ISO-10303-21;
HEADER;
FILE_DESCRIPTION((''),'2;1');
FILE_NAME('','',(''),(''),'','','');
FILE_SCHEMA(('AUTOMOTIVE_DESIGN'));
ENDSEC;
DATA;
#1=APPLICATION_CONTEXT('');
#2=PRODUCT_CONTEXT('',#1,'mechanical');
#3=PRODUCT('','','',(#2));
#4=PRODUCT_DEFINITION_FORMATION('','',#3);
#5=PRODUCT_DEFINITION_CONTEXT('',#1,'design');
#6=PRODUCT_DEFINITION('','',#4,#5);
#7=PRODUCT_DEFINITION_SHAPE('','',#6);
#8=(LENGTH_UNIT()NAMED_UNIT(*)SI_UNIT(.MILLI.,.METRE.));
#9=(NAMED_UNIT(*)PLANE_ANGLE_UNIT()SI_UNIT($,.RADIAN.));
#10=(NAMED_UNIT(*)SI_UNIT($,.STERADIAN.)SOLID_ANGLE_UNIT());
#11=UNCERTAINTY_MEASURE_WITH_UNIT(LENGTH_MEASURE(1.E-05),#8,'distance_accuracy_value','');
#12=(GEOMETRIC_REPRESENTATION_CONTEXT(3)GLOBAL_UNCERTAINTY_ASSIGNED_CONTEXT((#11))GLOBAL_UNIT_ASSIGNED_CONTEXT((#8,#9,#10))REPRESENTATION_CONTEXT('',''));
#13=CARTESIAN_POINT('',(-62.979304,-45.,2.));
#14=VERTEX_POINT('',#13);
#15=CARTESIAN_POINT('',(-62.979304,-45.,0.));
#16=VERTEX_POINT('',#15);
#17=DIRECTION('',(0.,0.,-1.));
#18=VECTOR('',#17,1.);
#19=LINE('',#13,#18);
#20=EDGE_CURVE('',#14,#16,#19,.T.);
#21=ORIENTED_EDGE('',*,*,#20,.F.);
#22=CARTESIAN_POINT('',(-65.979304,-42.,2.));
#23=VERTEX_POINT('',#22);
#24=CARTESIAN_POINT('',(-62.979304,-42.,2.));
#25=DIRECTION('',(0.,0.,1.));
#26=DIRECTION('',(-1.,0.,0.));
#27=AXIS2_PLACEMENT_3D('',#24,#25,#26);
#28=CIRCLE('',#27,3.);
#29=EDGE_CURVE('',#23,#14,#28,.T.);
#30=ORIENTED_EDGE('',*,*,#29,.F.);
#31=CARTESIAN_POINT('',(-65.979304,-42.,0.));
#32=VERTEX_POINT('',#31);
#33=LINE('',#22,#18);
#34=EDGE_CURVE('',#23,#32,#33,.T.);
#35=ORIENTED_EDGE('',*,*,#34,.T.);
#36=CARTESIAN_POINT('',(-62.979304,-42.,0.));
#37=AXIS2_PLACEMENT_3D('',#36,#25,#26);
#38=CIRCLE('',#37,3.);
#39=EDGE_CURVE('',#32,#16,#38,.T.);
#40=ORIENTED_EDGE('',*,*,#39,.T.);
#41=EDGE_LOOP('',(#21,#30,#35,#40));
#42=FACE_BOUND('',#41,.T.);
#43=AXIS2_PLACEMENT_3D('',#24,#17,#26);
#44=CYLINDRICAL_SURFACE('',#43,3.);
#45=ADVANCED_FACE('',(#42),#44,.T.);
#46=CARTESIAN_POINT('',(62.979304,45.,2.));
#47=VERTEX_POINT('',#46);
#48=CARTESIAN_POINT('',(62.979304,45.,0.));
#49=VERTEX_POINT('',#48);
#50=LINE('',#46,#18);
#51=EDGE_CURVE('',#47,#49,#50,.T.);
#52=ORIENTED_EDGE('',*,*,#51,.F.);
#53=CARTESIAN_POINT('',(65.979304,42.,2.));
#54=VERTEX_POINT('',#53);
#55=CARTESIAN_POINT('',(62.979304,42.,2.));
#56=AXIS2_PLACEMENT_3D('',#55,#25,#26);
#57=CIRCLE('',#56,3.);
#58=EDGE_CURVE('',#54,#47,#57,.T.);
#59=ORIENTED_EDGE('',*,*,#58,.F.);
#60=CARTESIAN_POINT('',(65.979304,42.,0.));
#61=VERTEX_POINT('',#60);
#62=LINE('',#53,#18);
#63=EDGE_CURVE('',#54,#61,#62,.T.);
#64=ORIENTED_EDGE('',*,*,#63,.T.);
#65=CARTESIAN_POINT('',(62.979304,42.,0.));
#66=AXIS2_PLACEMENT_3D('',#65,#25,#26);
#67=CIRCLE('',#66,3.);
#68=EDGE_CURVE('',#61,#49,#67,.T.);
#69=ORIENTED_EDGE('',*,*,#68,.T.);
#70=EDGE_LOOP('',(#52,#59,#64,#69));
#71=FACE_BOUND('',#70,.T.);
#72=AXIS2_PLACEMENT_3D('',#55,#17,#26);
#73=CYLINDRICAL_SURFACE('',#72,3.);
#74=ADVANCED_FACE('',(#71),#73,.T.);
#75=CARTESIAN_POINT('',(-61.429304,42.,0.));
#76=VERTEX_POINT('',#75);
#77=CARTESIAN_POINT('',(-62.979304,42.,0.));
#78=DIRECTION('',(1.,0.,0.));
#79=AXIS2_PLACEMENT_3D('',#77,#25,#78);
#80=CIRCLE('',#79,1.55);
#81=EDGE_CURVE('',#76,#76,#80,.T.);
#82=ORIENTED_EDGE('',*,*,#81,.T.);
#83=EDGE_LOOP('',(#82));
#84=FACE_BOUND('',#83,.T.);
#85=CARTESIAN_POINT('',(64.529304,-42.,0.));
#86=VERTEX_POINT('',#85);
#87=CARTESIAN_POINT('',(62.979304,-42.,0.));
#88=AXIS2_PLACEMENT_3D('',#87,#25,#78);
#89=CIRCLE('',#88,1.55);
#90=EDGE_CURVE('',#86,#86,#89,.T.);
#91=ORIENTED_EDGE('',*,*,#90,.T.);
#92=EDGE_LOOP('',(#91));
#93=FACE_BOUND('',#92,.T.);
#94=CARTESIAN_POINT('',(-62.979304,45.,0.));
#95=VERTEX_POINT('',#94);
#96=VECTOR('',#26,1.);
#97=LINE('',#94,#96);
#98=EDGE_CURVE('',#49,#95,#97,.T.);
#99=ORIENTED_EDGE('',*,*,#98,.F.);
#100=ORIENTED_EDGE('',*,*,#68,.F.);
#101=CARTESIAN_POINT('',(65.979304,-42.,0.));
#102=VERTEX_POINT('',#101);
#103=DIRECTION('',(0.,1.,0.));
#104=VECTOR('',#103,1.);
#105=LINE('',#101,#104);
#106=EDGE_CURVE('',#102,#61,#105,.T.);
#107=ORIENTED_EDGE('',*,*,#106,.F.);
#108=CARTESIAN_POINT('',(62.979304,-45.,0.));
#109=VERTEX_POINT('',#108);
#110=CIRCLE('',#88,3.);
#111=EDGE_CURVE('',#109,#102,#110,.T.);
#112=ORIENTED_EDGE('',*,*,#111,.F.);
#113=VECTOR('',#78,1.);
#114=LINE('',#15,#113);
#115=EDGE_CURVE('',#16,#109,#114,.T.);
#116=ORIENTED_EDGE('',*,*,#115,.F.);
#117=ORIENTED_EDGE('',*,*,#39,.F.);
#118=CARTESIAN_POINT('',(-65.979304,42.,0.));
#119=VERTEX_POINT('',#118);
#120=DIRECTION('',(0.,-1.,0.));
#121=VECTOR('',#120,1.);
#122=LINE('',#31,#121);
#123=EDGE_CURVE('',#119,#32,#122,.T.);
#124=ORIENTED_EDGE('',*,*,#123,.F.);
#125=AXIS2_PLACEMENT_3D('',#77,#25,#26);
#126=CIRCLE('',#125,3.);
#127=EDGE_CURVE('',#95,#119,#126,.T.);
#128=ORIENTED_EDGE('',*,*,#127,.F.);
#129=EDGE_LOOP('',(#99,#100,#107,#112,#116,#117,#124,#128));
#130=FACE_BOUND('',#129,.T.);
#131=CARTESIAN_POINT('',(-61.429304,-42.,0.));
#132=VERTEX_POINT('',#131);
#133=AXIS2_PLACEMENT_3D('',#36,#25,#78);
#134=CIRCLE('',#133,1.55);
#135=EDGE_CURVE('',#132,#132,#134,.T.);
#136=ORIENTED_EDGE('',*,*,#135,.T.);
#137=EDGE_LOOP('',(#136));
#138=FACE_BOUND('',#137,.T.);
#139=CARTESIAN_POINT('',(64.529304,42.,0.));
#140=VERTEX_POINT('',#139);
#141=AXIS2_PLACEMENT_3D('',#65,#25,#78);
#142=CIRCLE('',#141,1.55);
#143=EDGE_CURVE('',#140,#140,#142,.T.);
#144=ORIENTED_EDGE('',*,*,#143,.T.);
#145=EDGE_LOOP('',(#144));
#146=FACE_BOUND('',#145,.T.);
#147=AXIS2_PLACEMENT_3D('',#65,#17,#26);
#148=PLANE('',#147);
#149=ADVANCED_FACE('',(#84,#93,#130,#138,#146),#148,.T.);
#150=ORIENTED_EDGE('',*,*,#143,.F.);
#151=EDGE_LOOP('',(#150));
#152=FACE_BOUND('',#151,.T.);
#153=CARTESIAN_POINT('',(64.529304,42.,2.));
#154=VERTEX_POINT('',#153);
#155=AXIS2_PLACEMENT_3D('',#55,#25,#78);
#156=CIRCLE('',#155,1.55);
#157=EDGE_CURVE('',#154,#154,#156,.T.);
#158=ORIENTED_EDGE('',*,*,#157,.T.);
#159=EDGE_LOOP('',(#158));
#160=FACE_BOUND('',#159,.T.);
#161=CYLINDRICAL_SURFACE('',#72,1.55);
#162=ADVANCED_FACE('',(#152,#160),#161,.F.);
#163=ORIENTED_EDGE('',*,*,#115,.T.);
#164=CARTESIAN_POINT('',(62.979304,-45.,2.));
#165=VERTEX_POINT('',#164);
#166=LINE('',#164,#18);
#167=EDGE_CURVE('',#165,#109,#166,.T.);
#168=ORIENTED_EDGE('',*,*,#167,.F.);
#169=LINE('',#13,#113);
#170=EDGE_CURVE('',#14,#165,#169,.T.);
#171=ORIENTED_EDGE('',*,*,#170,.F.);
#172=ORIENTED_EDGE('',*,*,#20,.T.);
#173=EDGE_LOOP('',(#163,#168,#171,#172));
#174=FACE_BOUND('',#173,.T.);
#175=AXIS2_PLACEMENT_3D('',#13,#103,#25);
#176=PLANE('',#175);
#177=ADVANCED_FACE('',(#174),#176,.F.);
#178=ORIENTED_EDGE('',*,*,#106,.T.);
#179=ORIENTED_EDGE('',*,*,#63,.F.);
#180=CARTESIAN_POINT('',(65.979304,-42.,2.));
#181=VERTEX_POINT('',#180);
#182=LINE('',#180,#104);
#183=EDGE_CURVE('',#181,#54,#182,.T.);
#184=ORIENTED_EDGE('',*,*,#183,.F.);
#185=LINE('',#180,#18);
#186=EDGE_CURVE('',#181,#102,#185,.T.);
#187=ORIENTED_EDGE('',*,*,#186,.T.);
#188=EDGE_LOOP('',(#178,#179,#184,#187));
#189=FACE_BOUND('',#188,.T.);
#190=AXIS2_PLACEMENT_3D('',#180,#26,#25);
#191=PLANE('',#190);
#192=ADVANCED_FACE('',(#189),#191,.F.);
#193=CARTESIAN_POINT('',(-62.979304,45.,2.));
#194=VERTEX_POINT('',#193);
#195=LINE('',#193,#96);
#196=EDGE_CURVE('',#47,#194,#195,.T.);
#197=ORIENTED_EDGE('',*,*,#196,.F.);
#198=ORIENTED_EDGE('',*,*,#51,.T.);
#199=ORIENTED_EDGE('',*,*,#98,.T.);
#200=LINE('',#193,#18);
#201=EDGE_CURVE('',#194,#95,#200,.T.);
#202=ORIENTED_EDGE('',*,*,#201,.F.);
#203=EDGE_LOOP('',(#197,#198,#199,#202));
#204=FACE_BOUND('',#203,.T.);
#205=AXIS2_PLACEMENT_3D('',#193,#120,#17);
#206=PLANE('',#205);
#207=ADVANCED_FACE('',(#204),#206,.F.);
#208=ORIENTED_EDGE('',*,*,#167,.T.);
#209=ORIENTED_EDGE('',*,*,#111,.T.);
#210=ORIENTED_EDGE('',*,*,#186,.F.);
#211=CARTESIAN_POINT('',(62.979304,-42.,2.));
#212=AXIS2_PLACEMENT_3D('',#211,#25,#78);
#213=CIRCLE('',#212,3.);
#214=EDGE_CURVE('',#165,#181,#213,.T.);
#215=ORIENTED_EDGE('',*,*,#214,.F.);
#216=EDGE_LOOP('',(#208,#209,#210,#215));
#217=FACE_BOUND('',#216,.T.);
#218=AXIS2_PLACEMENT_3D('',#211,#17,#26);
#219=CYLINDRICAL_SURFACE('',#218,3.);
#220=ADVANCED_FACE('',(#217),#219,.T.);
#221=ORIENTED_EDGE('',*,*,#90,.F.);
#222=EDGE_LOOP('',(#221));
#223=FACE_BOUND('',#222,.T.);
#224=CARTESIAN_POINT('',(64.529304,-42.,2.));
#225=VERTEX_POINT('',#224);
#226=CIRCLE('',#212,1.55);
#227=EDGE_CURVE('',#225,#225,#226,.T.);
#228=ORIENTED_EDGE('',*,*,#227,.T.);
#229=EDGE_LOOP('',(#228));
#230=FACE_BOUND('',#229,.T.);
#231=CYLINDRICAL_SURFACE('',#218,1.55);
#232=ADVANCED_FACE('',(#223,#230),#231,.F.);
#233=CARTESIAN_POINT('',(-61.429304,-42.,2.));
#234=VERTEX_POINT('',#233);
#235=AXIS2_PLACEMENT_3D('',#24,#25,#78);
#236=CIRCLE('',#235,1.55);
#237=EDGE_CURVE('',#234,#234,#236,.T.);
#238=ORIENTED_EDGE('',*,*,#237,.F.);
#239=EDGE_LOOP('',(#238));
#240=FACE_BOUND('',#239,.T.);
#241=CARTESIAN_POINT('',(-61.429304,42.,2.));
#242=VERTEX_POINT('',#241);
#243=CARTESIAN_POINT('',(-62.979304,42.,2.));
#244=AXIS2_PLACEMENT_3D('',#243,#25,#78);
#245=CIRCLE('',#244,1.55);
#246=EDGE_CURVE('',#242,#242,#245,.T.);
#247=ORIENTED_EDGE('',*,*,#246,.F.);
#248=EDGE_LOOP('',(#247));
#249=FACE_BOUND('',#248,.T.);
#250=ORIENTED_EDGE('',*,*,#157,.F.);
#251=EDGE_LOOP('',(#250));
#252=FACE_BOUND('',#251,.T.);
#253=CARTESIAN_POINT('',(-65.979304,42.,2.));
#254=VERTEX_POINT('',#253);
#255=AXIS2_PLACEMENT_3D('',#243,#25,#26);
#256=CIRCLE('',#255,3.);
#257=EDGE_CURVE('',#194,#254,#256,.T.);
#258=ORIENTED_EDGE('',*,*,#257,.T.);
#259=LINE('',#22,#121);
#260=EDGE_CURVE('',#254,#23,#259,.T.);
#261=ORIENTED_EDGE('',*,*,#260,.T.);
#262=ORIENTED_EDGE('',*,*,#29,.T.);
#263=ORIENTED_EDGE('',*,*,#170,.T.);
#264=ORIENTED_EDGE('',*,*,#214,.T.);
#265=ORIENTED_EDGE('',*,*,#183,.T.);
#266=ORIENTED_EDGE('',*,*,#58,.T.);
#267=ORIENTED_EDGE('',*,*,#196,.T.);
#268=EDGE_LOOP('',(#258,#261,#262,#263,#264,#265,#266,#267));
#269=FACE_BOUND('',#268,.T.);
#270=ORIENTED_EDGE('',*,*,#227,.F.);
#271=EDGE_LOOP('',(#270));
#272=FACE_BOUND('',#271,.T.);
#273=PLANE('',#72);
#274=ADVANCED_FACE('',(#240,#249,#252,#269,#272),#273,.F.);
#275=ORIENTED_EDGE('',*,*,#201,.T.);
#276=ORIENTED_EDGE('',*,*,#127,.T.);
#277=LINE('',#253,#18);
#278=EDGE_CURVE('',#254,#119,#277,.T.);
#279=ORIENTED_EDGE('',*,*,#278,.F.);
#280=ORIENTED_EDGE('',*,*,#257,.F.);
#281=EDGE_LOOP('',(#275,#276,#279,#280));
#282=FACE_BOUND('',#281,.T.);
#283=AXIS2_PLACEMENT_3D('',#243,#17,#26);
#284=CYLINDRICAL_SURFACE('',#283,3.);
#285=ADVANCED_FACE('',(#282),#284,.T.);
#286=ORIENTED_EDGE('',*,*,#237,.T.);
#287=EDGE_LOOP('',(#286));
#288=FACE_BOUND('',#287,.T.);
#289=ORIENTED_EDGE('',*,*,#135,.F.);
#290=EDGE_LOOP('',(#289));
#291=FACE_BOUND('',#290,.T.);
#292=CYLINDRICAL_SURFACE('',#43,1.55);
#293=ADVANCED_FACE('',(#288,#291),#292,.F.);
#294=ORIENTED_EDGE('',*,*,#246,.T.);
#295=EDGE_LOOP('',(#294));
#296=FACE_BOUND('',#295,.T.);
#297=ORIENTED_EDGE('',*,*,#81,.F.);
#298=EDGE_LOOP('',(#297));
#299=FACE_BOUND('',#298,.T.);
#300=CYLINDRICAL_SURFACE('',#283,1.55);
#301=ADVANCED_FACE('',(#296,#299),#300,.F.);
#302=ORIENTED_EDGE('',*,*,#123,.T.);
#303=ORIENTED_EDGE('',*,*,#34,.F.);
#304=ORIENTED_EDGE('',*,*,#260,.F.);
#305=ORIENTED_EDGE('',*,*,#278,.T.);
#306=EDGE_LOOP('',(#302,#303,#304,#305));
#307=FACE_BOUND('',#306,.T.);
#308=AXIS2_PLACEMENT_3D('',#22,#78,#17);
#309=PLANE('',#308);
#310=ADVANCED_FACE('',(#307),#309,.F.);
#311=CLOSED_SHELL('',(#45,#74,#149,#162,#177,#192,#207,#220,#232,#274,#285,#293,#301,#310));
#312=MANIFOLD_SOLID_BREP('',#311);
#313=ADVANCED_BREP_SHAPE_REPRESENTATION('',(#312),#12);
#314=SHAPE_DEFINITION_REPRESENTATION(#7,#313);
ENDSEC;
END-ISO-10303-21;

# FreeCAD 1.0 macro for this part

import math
import FreeCAD as App
import Part
import Sketcher
from FreeCAD import Vector

doc = App.newDocument("Part")
body = doc.addObject("PartDesign::Body", "Body")

sketch1 = body.newObject("Sketcher::SketchObject", "Sketch")
sketch1.AttachmentSupport = (doc.getObject("XY_Plane"), [""])
sketch1.MapMode = "FlatFace"
sketch1.addGeometry([
    Part.LineSegment(Vector(-63, -45, 0), Vector(63, -45, 0)),
    Part.ArcOfCircle(Part.Circle(Vector(63, -42, 0), Vector(0, 0, 1), 3), math.radians(-90), math.radians(0)),
    Part.LineSegment(Vector(66, -42, 0), Vector(66, 42, 0)),
    Part.ArcOfCircle(Part.Circle(Vector(63, 42, 0), Vector(0, 0, 1), 3), math.radians(0), math.radians(90)),
    Part.LineSegment(Vector(63, 45, 0), Vector(-63, 45, 0)),
    Part.ArcOfCircle(Part.Circle(Vector(-63, 42, 0), Vector(0, 0, 1), 3), math.radians(90), math.radians(180)),
    Part.LineSegment(Vector(-66, 42, 0), Vector(-66, -42, 0)),
    Part.ArcOfCircle(Part.Circle(Vector(-63, -42, 0), Vector(0, 0, 1), 3), math.radians(180), math.radians(270)),
    Part.Circle(Vector(-63, -42, 0), Vector(0, 0, 1), 1.6),
    Part.Circle(Vector(63, -42, 0), Vector(0, 0, 1), 1.6),
    Part.Circle(Vector(-63, 42, 0), Vector(0, 0, 1), 1.6),
    Part.Circle(Vector(63, 42, 0), Vector(0, 0, 1), 1.6),
], False)
sketch1.addConstraint([
    Sketcher.Constraint("Tangent", 0, 2, 1, 1),
    Sketcher.Constraint("Tangent", 1, 2, 2, 1),
    Sketcher.Constraint("Tangent", 2, 2, 3, 1),
    Sketcher.Constraint("Tangent", 3, 2, 4, 1),
    Sketcher.Constraint("Tangent", 4, 2, 5, 1),
    Sketcher.Constraint("Tangent", 5, 2, 6, 1),
    Sketcher.Constraint("Tangent", 6, 2, 7, 1),
    Sketcher.Constraint("Tangent", 7, 2, 0, 1),
    Sketcher.Constraint("Horizontal", 0),
    Sketcher.Constraint("Vertical", 2),
    Sketcher.Constraint("Horizontal", 4),
    Sketcher.Constraint("Vertical", 6),
    Sketcher.Constraint("Coincident", 8, 3, 7, 3),
    Sketcher.Constraint("Coincident", 9, 3, 1, 3),
    Sketcher.Constraint("Coincident", 10, 3, 5, 3),
    Sketcher.Constraint("Coincident", 11, 3, 3, 3),
    Sketcher.Constraint("Equal", 1, 3),
    Sketcher.Constraint("Equal", 3, 5),
    Sketcher.Constraint("Equal", 5, 7),
    Sketcher.Constraint("Equal", 8, 9),
    Sketcher.Constraint("Equal", 9, 10),
    Sketcher.Constraint("Equal", 10, 11),
    Sketcher.Constraint("Symmetric", 1, 3, 5, 3, -1, 1),
    Sketcher.Constraint("Radius", 1, 3.0),
    Sketcher.Constraint("Diameter", 8, 3.1),
    Sketcher.Constraint("DistanceY", 2, 1, 2, 2, 84.0),
    Sketcher.Constraint("DistanceX", 0, 1, 0, 2, 125.958609),
])
pad1 = body.newObject("PartDesign::Pad", "Pad")
pad1.Profile = sketch1
pad1.Length = 2

doc.recompute()
